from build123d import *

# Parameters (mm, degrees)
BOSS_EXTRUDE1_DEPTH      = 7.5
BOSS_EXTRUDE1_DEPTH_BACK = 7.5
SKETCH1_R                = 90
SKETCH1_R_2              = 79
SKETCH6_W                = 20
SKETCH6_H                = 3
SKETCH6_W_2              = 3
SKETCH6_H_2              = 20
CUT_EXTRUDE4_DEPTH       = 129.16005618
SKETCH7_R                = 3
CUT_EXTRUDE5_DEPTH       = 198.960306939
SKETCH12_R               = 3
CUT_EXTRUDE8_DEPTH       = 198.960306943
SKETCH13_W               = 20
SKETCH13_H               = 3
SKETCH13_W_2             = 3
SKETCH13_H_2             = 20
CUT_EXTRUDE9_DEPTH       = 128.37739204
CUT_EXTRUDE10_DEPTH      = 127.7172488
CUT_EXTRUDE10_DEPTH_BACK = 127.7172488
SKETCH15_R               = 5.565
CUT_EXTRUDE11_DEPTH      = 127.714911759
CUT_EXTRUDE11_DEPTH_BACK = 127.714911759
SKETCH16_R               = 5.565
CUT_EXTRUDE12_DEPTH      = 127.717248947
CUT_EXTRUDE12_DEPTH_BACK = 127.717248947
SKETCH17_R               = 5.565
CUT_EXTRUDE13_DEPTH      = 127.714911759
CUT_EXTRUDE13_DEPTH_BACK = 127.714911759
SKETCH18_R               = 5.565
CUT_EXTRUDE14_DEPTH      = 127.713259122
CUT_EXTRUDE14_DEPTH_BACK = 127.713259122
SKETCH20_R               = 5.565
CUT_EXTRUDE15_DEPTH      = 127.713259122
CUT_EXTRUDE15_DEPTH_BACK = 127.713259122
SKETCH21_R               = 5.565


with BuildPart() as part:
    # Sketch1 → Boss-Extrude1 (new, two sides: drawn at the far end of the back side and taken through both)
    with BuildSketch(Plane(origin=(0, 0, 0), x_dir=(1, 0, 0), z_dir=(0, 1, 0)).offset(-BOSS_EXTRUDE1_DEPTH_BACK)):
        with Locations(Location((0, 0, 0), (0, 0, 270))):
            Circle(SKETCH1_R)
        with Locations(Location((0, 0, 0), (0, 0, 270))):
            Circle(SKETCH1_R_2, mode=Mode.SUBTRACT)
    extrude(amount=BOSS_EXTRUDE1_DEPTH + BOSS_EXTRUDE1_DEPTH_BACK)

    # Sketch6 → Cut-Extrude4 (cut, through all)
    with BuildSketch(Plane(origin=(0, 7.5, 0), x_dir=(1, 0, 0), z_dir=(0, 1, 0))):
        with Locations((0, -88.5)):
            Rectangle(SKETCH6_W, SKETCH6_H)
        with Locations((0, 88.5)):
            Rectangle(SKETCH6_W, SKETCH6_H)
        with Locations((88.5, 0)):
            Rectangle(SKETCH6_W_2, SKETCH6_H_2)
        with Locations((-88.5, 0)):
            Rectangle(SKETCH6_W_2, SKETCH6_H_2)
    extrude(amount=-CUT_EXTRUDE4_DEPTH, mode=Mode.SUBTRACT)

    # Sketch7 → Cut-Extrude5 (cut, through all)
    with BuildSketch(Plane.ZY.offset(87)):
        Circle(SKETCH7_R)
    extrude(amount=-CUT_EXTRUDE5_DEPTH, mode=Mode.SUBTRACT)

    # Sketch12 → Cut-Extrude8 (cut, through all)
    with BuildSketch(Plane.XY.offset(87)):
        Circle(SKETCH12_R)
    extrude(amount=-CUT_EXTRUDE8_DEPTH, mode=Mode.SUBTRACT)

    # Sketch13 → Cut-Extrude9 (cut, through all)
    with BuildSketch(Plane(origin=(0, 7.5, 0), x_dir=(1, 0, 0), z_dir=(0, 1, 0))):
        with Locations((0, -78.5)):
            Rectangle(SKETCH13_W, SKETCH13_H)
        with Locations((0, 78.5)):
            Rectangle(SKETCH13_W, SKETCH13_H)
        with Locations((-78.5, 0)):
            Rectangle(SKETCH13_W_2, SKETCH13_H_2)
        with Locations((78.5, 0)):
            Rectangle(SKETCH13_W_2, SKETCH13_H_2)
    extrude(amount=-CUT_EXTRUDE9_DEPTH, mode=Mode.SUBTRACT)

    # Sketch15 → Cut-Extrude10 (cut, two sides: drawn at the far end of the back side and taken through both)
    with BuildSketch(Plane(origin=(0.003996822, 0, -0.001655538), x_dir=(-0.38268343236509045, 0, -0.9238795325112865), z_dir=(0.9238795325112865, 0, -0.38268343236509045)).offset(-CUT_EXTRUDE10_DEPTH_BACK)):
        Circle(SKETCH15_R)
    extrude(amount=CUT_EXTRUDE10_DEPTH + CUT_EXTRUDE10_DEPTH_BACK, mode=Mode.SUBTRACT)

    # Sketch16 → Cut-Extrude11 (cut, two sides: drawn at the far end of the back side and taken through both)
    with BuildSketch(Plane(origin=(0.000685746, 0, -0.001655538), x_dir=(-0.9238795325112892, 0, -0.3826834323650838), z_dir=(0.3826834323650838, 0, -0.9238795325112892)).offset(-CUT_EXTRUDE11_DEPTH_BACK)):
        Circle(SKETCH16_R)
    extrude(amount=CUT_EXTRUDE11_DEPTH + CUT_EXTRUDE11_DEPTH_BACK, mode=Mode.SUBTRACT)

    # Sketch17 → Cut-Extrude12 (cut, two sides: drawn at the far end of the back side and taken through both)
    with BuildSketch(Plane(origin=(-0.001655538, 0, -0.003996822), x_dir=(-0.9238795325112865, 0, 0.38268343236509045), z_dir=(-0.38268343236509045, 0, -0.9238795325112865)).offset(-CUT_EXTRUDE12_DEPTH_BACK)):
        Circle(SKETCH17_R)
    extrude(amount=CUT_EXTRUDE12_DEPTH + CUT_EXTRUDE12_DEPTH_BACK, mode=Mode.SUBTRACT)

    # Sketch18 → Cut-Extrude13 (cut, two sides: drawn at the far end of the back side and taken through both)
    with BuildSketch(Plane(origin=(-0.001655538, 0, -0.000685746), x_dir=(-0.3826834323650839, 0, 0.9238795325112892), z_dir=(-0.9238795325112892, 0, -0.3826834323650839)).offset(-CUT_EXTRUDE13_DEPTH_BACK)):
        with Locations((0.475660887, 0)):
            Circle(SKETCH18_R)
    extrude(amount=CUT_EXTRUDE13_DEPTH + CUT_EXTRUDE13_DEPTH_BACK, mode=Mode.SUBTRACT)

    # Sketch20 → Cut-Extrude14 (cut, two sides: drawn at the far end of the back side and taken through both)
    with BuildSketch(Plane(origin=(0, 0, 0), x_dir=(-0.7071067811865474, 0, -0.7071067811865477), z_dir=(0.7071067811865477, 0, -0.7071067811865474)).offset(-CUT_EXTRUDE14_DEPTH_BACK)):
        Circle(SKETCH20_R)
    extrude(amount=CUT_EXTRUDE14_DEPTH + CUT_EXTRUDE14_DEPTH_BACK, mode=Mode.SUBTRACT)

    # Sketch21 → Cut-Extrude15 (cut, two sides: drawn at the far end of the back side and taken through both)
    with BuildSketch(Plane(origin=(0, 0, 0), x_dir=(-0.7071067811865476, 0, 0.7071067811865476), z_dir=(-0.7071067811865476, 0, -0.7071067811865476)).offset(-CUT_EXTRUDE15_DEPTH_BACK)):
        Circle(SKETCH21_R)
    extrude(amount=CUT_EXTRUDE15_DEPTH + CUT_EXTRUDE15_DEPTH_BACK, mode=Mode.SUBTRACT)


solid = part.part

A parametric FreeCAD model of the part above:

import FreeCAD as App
import Part
import Sketcher
from FreeCAD import Vector


def add_polygon(sketch, points):
    """Adds a closed chain of lines whose ends are joined by coincident constraints."""
    first, n = sketch.GeometryCount, len(points)
    for a, b in zip(points, points[1:] + points[:1]):
        sketch.addGeometry(Part.LineSegment(App.Vector(*a, 0), App.Vector(*b, 0)), False)
    for i in range(n):
        sketch.addConstraint(Sketcher.Constraint("Coincident", first + i, 2, first + (i + 1) % n, 1))

doc = App.newDocument("Part")
body = doc.addObject("PartDesign::Body", "Body")

# Sketch on XZ plane
sketch1 = doc.addObject("Sketcher::SketchObject", "Sketch")
body.addObject(sketch1)
sketch1.AttachmentSupport = (doc.XZ_Plane, [""])
sketch1.MapMode = "FlatFace"
sketch1.addGeometry(Part.Circle(Vector(0, 0, 0), Vector(0, 0, 1), 90), False)
sketch1.addGeometry(Part.Circle(Vector(0, 0, 0), Vector(0, 0, 1), 79), False)
sketch1.addConstraint(Sketcher.Constraint("Coincident", 0, 3, -1, 1))
sketch1.addConstraint(Sketcher.Constraint("Coincident", 1, 3, -1, 1))
sketch1.addConstraint(Sketcher.Constraint("Diameter", 0, 180.0))
sketch1.addConstraint(Sketcher.Constraint("Diameter", 1, 158.0))
pad1 = doc.addObject("PartDesign::Pad", "Pad")
body.addObject(pad1)
pad1.Profile = sketch1
pad1.Type = "TwoLengths"
pad1.Length = 7.5
pad1.Length2 = 7.5
pad1.Reversed = True

# Sketch on XZ plane
sketch2 = doc.addObject("Sketcher::SketchObject", "Sketch001")
body.addObject(sketch2)
sketch2.AttachmentSupport = (doc.XZ_Plane, [""])
sketch2.MapMode = "FlatFace"
sketch2.AttachmentOffset = App.Placement(Vector(0, 0, -7.5), App.Rotation())
add_polygon(sketch2, [(-10, 87), (-10, 90), (10, 90), (10, 87)])  # lines 0-3
add_polygon(sketch2, [(-10, -90), (-10, -87), (10, -87), (10, -90)])  # lines 4-7
add_polygon(sketch2, [(87, -10), (87, 10), (90, 10), (90, -10)])  # lines 8-11
add_polygon(sketch2, [(-90, -10), (-90, 10), (-87, 10), (-87, -10)])  # lines 12-15
sketch2.addConstraint(Sketcher.Constraint("Vertical", 0))
sketch2.addConstraint(Sketcher.Constraint("Horizontal", 1))
sketch2.addConstraint(Sketcher.Constraint("Vertical", 2))
sketch2.addConstraint(Sketcher.Constraint("Horizontal", 3))
sketch2.addConstraint(Sketcher.Constraint("Vertical", 4))
sketch2.addConstraint(Sketcher.Constraint("Horizontal", 5))
sketch2.addConstraint(Sketcher.Constraint("Vertical", 6))
sketch2.addConstraint(Sketcher.Constraint("Horizontal", 7))
sketch2.addConstraint(Sketcher.Constraint("Vertical", 8))
sketch2.addConstraint(Sketcher.Constraint("Horizontal", 9))
sketch2.addConstraint(Sketcher.Constraint("Vertical", 10))
sketch2.addConstraint(Sketcher.Constraint("Horizontal", 11))
sketch2.addConstraint(Sketcher.Constraint("Vertical", 12))
sketch2.addConstraint(Sketcher.Constraint("Horizontal", 13))
sketch2.addConstraint(Sketcher.Constraint("Vertical", 14))
sketch2.addConstraint(Sketcher.Constraint("Horizontal", 15))
sketch2.addConstraint(Sketcher.Constraint("Symmetric", 2, 2, 4, 2, -1, 1))
sketch2.addConstraint(Sketcher.Constraint("Symmetric", 0, 2, 6, 2, -1, 1))
sketch2.addConstraint(Sketcher.Constraint("Symmetric", 10, 2, 12, 2, -1, 1))
sketch2.addConstraint(Sketcher.Constraint("Symmetric", 8, 2, 14, 2, -1, 1))
sketch2.addConstraint(Sketcher.Constraint("Horizontal", 9, 2, 12, 2))
sketch2.addConstraint(Sketcher.Constraint("Vertical", 3, 2, 4, 2))
sketch2.addConstraint(Sketcher.Constraint("Equal", 15, 0))
sketch2.addConstraint(Sketcher.Constraint("Equal", 7, 8))
sketch2.addConstraint(Sketcher.Constraint("DistanceX", 1, 1, 1, 2, 20.0))
sketch2.addConstraint(Sketcher.Constraint("DistanceX", 9, 1, 9, 2, 3.0))
sketch2.addConstraint(Sketcher.Constraint("DistanceY", -1, 1, 0, 2, 90.0))
sketch2.addConstraint(Sketcher.Constraint("DistanceX", -1, 1, 8, 2, 87.0))
pocket1 = doc.addObject("PartDesign::Pocket", "Pocket")
body.addObject(pocket1)
pocket1.Profile = sketch2
pocket1.Type = "ThroughAll"
pocket1.Reversed = True

# Sketch on YZ plane
sketch3 = doc.addObject("Sketcher::SketchObject", "Sketch002")
body.addObject(sketch3)
sketch3.AttachmentSupport = (doc.YZ_Plane, [""])
sketch3.MapMode = "FlatFace"
sketch3.AttachmentOffset = App.Placement(Vector(0, 0, -87), App.Rotation())
sketch3.addGeometry(Part.Circle(Vector(0, 0, 0), Vector(0, 0, 1), 3), False)
sketch3.addConstraint(Sketcher.Constraint("Coincident", 0, 3, -1, 1))
sketch3.addConstraint(Sketcher.Constraint("Diameter", 0, 6.0))
pocket2 = doc.addObject("PartDesign::Pocket", "Pocket001")
body.addObject(pocket2)
pocket2.Profile = sketch3
pocket2.Type = "ThroughAll"
pocket2.Reversed = True

# Sketch on XY plane
sketch4 = doc.addObject("Sketcher::SketchObject", "Sketch003")
body.addObject(sketch4)
sketch4.AttachmentSupport = (doc.XY_Plane, [""])
sketch4.MapMode = "FlatFace"
sketch4.AttachmentOffset = App.Placement(Vector(0, 0, 87), App.Rotation())
sketch4.addGeometry(Part.Circle(Vector(0, 0, 0), Vector(0, 0, 1), 3), False)
sketch4.addConstraint(Sketcher.Constraint("Coincident", 0, 3, -1, 1))
sketch4.addConstraint(Sketcher.Constraint("Diameter", 0, 6.0))
pocket3 = doc.addObject("PartDesign::Pocket", "Pocket002")
body.addObject(pocket3)
pocket3.Profile = sketch4
pocket3.Type = "ThroughAll"

# Sketch on XZ plane
sketch5 = doc.addObject("Sketcher::SketchObject", "Sketch004")
body.addObject(sketch5)
sketch5.AttachmentSupport = (doc.XZ_Plane, [""])
sketch5.MapMode = "FlatFace"
sketch5.AttachmentOffset = App.Placement(Vector(0, 0, -7.5), App.Rotation())
add_polygon(sketch5, [(-10, 77), (-10, 80), (10, 80), (10, 77)])  # lines 0-3
add_polygon(sketch5, [(-10, -80), (-10, -77), (10, -77), (10, -80)])  # lines 4-7
add_polygon(sketch5, [(-80, -10), (-80, 10), (-77, 10), (-77, -10)])  # lines 8-11
add_polygon(sketch5, [(77, -10), (77, 10), (80, 10), (80, -10)])  # lines 12-15
sketch5.addConstraint(Sketcher.Constraint("Vertical", 0))
sketch5.addConstraint(Sketcher.Constraint("Horizontal", 1))
sketch5.addConstraint(Sketcher.Constraint("Vertical", 2))
sketch5.addConstraint(Sketcher.Constraint("Horizontal", 3))
sketch5.addConstraint(Sketcher.Constraint("Vertical", 4))
sketch5.addConstraint(Sketcher.Constraint("Horizontal", 5))
sketch5.addConstraint(Sketcher.Constraint("Vertical", 6))
sketch5.addConstraint(Sketcher.Constraint("Horizontal", 7))
sketch5.addConstraint(Sketcher.Constraint("Vertical", 8))
sketch5.addConstraint(Sketcher.Constraint("Horizontal", 9))
sketch5.addConstraint(Sketcher.Constraint("Vertical", 10))
sketch5.addConstraint(Sketcher.Constraint("Horizontal", 11))
sketch5.addConstraint(Sketcher.Constraint("Vertical", 12))
sketch5.addConstraint(Sketcher.Constraint("Horizontal", 13))
sketch5.addConstraint(Sketcher.Constraint("Vertical", 14))
sketch5.addConstraint(Sketcher.Constraint("Horizontal", 15))
sketch5.addConstraint(Sketcher.Constraint("Symmetric", 2, 2, 4, 2, -1, 1))
sketch5.addConstraint(Sketcher.Constraint("Symmetric", 0, 2, 6, 2, -1, 1))
sketch5.addConstraint(Sketcher.Constraint("Symmetric", 10, 2, 12, 2, -1, 1))
sketch5.addConstraint(Sketcher.Constraint("Symmetric", 8, 2, 14, 2, -1, 1))
sketch5.addConstraint(Sketcher.Constraint("Horizontal", 9, 2, 12, 2))
sketch5.addConstraint(Sketcher.Constraint("Vertical", 3, 2, 4, 2))
sketch5.addConstraint(Sketcher.Constraint("Equal", 15, 0))
sketch5.addConstraint(Sketcher.Constraint("Equal", 7, 8))
sketch5.addConstraint(Sketcher.Constraint("DistanceX", 1, 1, 1, 2, 20.0))
sketch5.addConstraint(Sketcher.Constraint("DistanceX", 9, 1, 9, 2, 3.0))
sketch5.addConstraint(Sketcher.Constraint("DistanceY", -1, 1, 0, 2, 80.0))
sketch5.addConstraint(Sketcher.Constraint("DistanceX", 8, 2, -1, 1, 80.0))
pocket4 = doc.addObject("PartDesign::Pocket", "Pocket003")
body.addObject(pocket4)
pocket4.Profile = sketch5
pocket4.Type = "ThroughAll"
pocket4.Reversed = True

# Sketch on an angled plane
sketch6 = doc.addObject("Sketcher::SketchObject", "Sketch005")
body.addObject(sketch6)
sketch6.Placement = App.Placement(Vector(0.003997, 0, -0.001655), App.Rotation(Vector(-0.382683432, 0, -0.923879533), Vector(0, 1.000000001, 0), Vector(0.923879533, 0, -0.382683432), "ZXY"))
sketch6.addGeometry(Part.Circle(Vector(0, 0, 0), Vector(0, 0, 1), 6), False)
sketch6.addConstraint(Sketcher.Constraint("Coincident", 0, 3, -1, 1))
sketch6.addConstraint(Sketcher.Constraint("Diameter", 0, 11.13))
pocket5 = doc.addObject("PartDesign::Pocket", "Pocket004")
body.addObject(pocket5)
pocket5.Profile = sketch6
pocket5.Type = "ThroughAll"
pocket5.Midplane = True

# Sketch on an angled plane
sketch7 = doc.addObject("Sketcher::SketchObject", "Sketch006")
body.addObject(sketch7)
sketch7.Placement = App.Placement(Vector(0.000686, 0, -0.001656), App.Rotation(Vector(-0.923879533, 0, -0.382683432), Vector(0, 1.000000001, 0), Vector(0.382683432, 0, -0.923879533), "ZXY"))
sketch7.addGeometry(Part.Circle(Vector(0, 0, 0), Vector(0, 0, 1), 6), False)
sketch7.addConstraint(Sketcher.Constraint("Coincident", 0, 3, -1, 1))
sketch7.addConstraint(Sketcher.Constraint("Diameter", 0, 11.13))
pocket6 = doc.addObject("PartDesign::Pocket", "Pocket005")
body.addObject(pocket6)
pocket6.Profile = sketch7
pocket6.Type = "ThroughAll"
pocket6.Midplane = True

# Sketch on an angled plane
sketch8 = doc.addObject("Sketcher::SketchObject", "Sketch007")
body.addObject(sketch8)
sketch8.Placement = App.Placement(Vector(-0.001655, 0, -0.003997), App.Rotation(Vector(-0.923879533, 0, 0.382683432), Vector(0, 1.000000001, 0), Vector(-0.382683432, 0, -0.923879533), "ZXY"))
sketch8.addGeometry(Part.Circle(Vector(0, 0, 0), Vector(0, 0, 1), 6), False)
sketch8.addConstraint(Sketcher.Constraint("Coincident", 0, 3, -1, 1))
sketch8.addConstraint(Sketcher.Constraint("Diameter", 0, 11.13))
pocket7 = doc.addObject("PartDesign::Pocket", "Pocket006")
body.addObject(pocket7)
pocket7.Profile = sketch8
pocket7.Type = "ThroughAll"
pocket7.Midplane = True

# Sketch on an angled plane
sketch9 = doc.addObject("Sketcher::SketchObject", "Sketch008")
body.addObject(sketch9)
sketch9.Placement = App.Placement(Vector(-0.001656, 0, -0.000686), App.Rotation(Vector(-0.382683432, 0, 0.923879533), Vector(0, 1.000000001, 0), Vector(-0.923879533, 0, -0.382683432), "ZXY"))
sketch9.addGeometry(Part.Circle(Vector(0, 0, 0), Vector(0, 0, 1), 6), False)
sketch9.addConstraint(Sketcher.Constraint("PointOnObject", 0, 3, -1))
sketch9.addConstraint(Sketcher.Constraint("Diameter", 0, 11.13))
sketch9.addConstraint(Sketcher.Constraint("DistanceX", -1, 1, 0, 3, 0.475661))
pocket8 = doc.addObject("PartDesign::Pocket", "Pocket007")
body.addObject(pocket8)
pocket8.Profile = sketch9
pocket8.Type = "ThroughAll"
pocket8.Midplane = True

# Sketch on an angled plane
sketch10 = doc.addObject("Sketcher::SketchObject", "Sketch009")
body.addObject(sketch10)
sketch10.Placement = App.Placement(Vector(0, 0, 0), App.Rotation(Vector(-0.707106781, 0, -0.707106781), Vector(0, 0.999999999, 0), Vector(0.707106781, 0, -0.707106781), "ZXY"))
sketch10.addGeometry(Part.Circle(Vector(0, 0, 0), Vector(0, 0, 1), 6), False)
sketch10.addConstraint(Sketcher.Constraint("Coincident", 0, 3, -1, 1))
sketch10.addConstraint(Sketcher.Constraint("Diameter", 0, 11.13))
pocket9 = doc.addObject("PartDesign::Pocket", "Pocket008")
body.addObject(pocket9)
pocket9.Profile = sketch10
pocket9.Type = "ThroughAll"
pocket9.Midplane = True

# Sketch on an angled plane
sketch11 = doc.addObject("Sketcher::SketchObject", "Sketch010")
body.addObject(sketch11)
sketch11.Placement = App.Placement(Vector(0, 0, 0), App.Rotation(Vector(-0.707106781, 0, 0.707106781), Vector(0, 0.999999999, 0), Vector(-0.707106781, 0, -0.707106781), "ZXY"))
sketch11.addGeometry(Part.Circle(Vector(0, 0, 0), Vector(0, 0, 1), 6), False)
sketch11.addConstraint(Sketcher.Constraint("Coincident", 0, 3, -1, 1))
sketch11.addConstraint(Sketcher.Constraint("Diameter", 0, 11.13))
pocket10 = doc.addObject("PartDesign::Pocket", "Pocket009")
body.addObject(pocket10)
pocket10.Profile = sketch11
pocket10.Type = "ThroughAll"
pocket10.Midplane = True

doc.recompute()
